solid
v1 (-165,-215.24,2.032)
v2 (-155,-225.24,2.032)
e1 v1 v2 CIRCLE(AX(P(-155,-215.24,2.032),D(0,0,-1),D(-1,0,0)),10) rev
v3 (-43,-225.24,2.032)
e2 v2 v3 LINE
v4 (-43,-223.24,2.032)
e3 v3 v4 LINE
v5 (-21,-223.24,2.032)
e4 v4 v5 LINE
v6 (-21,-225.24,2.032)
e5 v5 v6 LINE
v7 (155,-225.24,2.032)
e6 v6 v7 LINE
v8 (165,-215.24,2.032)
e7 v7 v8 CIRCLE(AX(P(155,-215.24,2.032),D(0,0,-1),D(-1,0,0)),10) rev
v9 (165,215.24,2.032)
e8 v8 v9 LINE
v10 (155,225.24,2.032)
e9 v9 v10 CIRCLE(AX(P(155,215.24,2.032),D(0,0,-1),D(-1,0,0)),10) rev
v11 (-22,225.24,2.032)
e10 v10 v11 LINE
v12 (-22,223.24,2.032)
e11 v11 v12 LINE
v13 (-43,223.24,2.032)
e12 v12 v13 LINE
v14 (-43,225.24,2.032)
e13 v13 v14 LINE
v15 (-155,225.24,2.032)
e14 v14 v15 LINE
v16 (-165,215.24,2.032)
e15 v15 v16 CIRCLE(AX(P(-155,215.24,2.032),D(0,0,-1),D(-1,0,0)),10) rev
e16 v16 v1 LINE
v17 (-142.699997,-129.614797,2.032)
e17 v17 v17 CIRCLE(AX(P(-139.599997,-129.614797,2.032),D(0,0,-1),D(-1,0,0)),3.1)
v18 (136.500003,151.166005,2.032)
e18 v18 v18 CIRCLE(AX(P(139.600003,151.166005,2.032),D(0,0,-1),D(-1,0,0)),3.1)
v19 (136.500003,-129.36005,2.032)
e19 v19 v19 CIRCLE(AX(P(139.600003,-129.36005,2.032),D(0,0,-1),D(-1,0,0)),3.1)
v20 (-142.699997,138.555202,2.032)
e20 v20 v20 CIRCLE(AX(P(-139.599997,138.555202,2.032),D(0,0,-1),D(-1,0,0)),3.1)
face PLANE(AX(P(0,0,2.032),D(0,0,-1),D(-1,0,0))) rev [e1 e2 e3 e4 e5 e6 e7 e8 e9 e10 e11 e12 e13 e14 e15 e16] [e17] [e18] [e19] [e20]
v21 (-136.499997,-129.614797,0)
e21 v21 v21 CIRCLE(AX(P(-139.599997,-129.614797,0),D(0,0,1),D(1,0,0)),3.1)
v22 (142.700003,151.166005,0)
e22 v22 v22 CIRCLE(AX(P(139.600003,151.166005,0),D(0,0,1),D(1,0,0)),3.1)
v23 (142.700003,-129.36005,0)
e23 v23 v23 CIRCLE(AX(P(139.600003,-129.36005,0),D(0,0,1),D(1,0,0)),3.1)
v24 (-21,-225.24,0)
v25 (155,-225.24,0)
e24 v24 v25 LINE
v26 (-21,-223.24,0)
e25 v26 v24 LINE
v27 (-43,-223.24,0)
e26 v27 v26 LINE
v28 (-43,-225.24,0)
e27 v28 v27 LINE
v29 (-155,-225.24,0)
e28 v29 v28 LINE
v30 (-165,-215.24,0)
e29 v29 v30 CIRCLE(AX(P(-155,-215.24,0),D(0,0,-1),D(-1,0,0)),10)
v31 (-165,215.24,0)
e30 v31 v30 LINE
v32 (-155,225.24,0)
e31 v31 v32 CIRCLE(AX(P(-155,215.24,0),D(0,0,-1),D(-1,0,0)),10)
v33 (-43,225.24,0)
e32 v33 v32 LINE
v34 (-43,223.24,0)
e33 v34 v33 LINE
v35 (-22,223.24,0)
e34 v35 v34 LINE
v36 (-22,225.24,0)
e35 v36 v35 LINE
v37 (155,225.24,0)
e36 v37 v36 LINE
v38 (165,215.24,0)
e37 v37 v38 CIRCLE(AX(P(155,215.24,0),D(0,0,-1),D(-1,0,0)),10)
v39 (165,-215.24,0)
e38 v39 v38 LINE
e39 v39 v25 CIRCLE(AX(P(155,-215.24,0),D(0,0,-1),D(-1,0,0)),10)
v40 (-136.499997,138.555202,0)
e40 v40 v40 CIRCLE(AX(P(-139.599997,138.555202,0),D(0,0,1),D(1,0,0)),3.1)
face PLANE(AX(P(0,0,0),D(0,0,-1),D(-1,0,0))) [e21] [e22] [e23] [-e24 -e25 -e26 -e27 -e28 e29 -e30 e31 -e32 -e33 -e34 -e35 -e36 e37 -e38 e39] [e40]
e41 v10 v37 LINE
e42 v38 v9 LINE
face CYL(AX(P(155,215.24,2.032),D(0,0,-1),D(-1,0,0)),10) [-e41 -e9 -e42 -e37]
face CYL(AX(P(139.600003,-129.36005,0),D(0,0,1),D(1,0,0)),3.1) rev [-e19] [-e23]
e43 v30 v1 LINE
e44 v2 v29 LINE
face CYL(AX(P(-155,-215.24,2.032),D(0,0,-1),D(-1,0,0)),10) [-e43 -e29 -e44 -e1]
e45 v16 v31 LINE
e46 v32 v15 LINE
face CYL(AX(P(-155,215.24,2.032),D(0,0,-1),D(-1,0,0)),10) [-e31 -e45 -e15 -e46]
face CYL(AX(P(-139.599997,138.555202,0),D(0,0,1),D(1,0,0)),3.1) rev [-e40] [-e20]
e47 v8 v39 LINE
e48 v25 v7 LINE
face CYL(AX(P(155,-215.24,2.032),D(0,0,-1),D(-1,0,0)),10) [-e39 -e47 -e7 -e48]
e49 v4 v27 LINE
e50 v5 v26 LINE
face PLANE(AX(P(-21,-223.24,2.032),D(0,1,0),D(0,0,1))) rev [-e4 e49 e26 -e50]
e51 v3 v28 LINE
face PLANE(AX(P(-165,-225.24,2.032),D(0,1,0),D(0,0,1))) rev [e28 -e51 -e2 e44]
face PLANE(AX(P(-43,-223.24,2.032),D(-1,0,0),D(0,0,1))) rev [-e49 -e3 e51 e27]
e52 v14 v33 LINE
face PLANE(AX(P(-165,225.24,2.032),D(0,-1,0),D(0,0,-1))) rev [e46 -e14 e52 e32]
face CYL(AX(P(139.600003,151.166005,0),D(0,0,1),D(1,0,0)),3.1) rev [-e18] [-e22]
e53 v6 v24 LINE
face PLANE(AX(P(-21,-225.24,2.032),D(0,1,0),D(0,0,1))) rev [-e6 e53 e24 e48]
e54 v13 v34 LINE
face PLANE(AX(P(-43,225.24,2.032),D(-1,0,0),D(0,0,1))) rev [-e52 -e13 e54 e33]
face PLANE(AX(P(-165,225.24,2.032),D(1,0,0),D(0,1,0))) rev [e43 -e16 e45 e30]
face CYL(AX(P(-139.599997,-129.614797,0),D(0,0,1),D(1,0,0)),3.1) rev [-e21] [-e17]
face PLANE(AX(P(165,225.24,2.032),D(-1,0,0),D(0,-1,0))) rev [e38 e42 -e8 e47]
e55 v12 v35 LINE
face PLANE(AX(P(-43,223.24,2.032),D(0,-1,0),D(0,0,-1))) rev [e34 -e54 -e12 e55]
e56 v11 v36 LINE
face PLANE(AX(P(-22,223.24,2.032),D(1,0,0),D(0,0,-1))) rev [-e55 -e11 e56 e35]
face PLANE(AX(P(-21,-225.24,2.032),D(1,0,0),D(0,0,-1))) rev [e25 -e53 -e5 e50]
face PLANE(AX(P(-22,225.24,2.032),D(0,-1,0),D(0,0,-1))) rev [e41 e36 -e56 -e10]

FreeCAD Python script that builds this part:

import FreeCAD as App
import Part
import Sketcher


def edges_at(feature, points):
    """Names of the edges that pass closest to the given points."""
    edges = feature.Shape.Edges
    near = lambda p: min(range(len(edges)), key=lambda i: edges[i].distToShape(Part.Vertex(*p))[0])
    return sorted({f"Edge{near(p) + 1}" for p in points})

doc = App.newDocument("Part")
body = doc.addObject("PartDesign::Body", "Body")

# Sketch on XY plane
sketch1 = doc.addObject("Sketcher::SketchObject", "Sketch")
body.addObject(sketch1)
sketch1.AttachmentSupport = (doc.XY_Plane, [""])
sketch1.MapMode = "FlatFace"
sketch1.addGeometry([
    Part.LineSegment(App.Vector(-43, 223.2, 0), App.Vector(-43, 225.2, 0)),  # 0
    Part.LineSegment(App.Vector(-43, 225.2, 0), App.Vector(-165, 225.2, 0)),  # 1
    Part.LineSegment(App.Vector(-165, 225.2, 0), App.Vector(-165, -225.2, 0)),  # 2
    Part.LineSegment(App.Vector(-165, -225.2, 0), App.Vector(-43, -225.2, 0)),  # 3
    Part.LineSegment(App.Vector(-43, -225.2, 0), App.Vector(-43, -223.2, 0)),  # 4
    Part.LineSegment(App.Vector(-43, -223.2, 0), App.Vector(-21, -223.2, 0)),  # 5
    Part.LineSegment(App.Vector(-21, -223.2, 0), App.Vector(-21, -225.2, 0)),  # 6
    Part.LineSegment(App.Vector(-21, -225.2, 0), App.Vector(165, -225.2, 0)),  # 7
    Part.LineSegment(App.Vector(165, -225.2, 0), App.Vector(165, 225.2, 0)),  # 8
    Part.LineSegment(App.Vector(165, 225.2, 0), App.Vector(-22, 225.2, 0)),  # 9
    Part.LineSegment(App.Vector(-22, 225.2, 0), App.Vector(-22, 223.2, 0)),  # 10
    Part.LineSegment(App.Vector(-22, 223.2, 0), App.Vector(-43, 223.2, 0)),  # 11
], False)
sketch1.addConstraint([
    Sketcher.Constraint("Coincident", 0, 2, 1, 1),
    Sketcher.Constraint("Coincident", 1, 2, 2, 1),
    Sketcher.Constraint("Coincident", 2, 2, 3, 1),
    Sketcher.Constraint("Coincident", 3, 2, 4, 1),
    Sketcher.Constraint("Coincident", 4, 2, 5, 1),
    Sketcher.Constraint("Coincident", 5, 2, 6, 1),
    Sketcher.Constraint("Coincident", 6, 2, 7, 1),
    Sketcher.Constraint("Coincident", 7, 2, 8, 1),
    Sketcher.Constraint("Coincident", 8, 2, 9, 1),
    Sketcher.Constraint("Coincident", 9, 2, 10, 1),
    Sketcher.Constraint("Coincident", 10, 2, 11, 1),
    Sketcher.Constraint("Coincident", 11, 2, 0, 1),
    Sketcher.Constraint("Vertical", 0),
    Sketcher.Constraint("Horizontal", 1),
    Sketcher.Constraint("Vertical", 2),
    Sketcher.Constraint("Horizontal", 3),
    Sketcher.Constraint("Vertical", 4),
    Sketcher.Constraint("Horizontal", 5),
    Sketcher.Constraint("Vertical", 6),
    Sketcher.Constraint("Horizontal", 7),
    Sketcher.Constraint("Vertical", 8),
    Sketcher.Constraint("Horizontal", 9),
    Sketcher.Constraint("Vertical", 10),
    Sketcher.Constraint("Horizontal", 11),
    Sketcher.Constraint("Symmetric", 1, 2, 7, 2, -1, 1),
    Sketcher.Constraint("Symmetric", 0, 2, 3, 2, -1),
    Sketcher.Constraint("Horizontal", 1, 2, 8, 2),
    Sketcher.Constraint("Equal", 0, 4),
    Sketcher.Constraint("DistanceX", 1, 2, 1, 1, 122.0),
    Sketcher.Constraint("DistanceX", 5, 1, 5, 2, 22.0),
    Sketcher.Constraint("DistanceX", 7, 1, 7, 2, 186.0),
    Sketcher.Constraint("DistanceX", 9, 2, 9, 1, 187.0),
    Sketcher.Constraint("DistanceY", 0, 1, 0, 2, 2.0),
    Sketcher.Constraint("DistanceY", 2, 2, 2, 1, 450.48),
])
pad1 = doc.addObject("PartDesign::Pad", "Pad")
body.addObject(pad1)
pad1.Profile = sketch1
pad1.Length = 2.032

# Sketch on XY plane
sketch2 = doc.addObject("Sketcher::SketchObject", "Sketch001")
body.addObject(sketch2)
sketch2.AttachmentSupport = (doc.XY_Plane, [""])
sketch2.MapMode = "FlatFace"
sketch2.AttachmentOffset = App.Placement(App.Vector(0, 0, 2.032), App.Rotation())
sketch2.addGeometry([
    Part.Circle(App.Vector(-139.6, -129.6, 0), App.Vector(0, 0, 1), 3.1),
    Part.Circle(App.Vector(-139.6, 138.6, 0), App.Vector(0, 0, 1), 3.1),
    Part.Circle(App.Vector(139.6, 151.2, 0), App.Vector(0, 0, 1), 3.1),
    Part.Circle(App.Vector(139.6, -129.4, 0), App.Vector(0, 0, 1), 3.1),
], False)
sketch2.addConstraint([
    Sketcher.Constraint("Equal", 0, 1),
    Sketcher.Constraint("Equal", 1, 2),
    Sketcher.Constraint("Equal", 2, 3),
    Sketcher.Constraint("Vertical", 0, 3, 1, 3),
    Sketcher.Constraint("Vertical", 2, 3, 3, 3),
    Sketcher.Constraint("Diameter", 0, 6.2),
    Sketcher.Constraint("DistanceX", 1, 3, 2, 3, 279.2),
    Sketcher.Constraint("DistanceY", 0, 3, 1, 3, 268.169998),
    Sketcher.Constraint("DistanceY", -1, 1, 1, 3, 138.555202),
    Sketcher.Constraint("DistanceY", 0, 3, 2, 3, 280.780802),
    Sketcher.Constraint("DistanceY", 3, 3, -1, 1, 129.36005),
    Sketcher.Constraint("DistanceX", 0, 3, -1, 1, 139.599997),
])
pocket1 = doc.addObject("PartDesign::Pocket", "Pocket")
body.addObject(pocket1)
pocket1.Profile = sketch2
pocket1.Type = "ThroughAll"
pocket1.Midplane = True
doc.recompute()

fillet = doc.addObject("PartDesign::Fillet", "Fillet")
body.addObject(fillet)
fillet.Base = (pocket1, edges_at(pocket1, [
    (-165, -225.24, 1.016),
    (-165, 225.24, 1.016),
    (165, 225.24, 1.016),
    (165, -225.24, 1.016),
]))
fillet.Radius = 10

doc.recompute()
